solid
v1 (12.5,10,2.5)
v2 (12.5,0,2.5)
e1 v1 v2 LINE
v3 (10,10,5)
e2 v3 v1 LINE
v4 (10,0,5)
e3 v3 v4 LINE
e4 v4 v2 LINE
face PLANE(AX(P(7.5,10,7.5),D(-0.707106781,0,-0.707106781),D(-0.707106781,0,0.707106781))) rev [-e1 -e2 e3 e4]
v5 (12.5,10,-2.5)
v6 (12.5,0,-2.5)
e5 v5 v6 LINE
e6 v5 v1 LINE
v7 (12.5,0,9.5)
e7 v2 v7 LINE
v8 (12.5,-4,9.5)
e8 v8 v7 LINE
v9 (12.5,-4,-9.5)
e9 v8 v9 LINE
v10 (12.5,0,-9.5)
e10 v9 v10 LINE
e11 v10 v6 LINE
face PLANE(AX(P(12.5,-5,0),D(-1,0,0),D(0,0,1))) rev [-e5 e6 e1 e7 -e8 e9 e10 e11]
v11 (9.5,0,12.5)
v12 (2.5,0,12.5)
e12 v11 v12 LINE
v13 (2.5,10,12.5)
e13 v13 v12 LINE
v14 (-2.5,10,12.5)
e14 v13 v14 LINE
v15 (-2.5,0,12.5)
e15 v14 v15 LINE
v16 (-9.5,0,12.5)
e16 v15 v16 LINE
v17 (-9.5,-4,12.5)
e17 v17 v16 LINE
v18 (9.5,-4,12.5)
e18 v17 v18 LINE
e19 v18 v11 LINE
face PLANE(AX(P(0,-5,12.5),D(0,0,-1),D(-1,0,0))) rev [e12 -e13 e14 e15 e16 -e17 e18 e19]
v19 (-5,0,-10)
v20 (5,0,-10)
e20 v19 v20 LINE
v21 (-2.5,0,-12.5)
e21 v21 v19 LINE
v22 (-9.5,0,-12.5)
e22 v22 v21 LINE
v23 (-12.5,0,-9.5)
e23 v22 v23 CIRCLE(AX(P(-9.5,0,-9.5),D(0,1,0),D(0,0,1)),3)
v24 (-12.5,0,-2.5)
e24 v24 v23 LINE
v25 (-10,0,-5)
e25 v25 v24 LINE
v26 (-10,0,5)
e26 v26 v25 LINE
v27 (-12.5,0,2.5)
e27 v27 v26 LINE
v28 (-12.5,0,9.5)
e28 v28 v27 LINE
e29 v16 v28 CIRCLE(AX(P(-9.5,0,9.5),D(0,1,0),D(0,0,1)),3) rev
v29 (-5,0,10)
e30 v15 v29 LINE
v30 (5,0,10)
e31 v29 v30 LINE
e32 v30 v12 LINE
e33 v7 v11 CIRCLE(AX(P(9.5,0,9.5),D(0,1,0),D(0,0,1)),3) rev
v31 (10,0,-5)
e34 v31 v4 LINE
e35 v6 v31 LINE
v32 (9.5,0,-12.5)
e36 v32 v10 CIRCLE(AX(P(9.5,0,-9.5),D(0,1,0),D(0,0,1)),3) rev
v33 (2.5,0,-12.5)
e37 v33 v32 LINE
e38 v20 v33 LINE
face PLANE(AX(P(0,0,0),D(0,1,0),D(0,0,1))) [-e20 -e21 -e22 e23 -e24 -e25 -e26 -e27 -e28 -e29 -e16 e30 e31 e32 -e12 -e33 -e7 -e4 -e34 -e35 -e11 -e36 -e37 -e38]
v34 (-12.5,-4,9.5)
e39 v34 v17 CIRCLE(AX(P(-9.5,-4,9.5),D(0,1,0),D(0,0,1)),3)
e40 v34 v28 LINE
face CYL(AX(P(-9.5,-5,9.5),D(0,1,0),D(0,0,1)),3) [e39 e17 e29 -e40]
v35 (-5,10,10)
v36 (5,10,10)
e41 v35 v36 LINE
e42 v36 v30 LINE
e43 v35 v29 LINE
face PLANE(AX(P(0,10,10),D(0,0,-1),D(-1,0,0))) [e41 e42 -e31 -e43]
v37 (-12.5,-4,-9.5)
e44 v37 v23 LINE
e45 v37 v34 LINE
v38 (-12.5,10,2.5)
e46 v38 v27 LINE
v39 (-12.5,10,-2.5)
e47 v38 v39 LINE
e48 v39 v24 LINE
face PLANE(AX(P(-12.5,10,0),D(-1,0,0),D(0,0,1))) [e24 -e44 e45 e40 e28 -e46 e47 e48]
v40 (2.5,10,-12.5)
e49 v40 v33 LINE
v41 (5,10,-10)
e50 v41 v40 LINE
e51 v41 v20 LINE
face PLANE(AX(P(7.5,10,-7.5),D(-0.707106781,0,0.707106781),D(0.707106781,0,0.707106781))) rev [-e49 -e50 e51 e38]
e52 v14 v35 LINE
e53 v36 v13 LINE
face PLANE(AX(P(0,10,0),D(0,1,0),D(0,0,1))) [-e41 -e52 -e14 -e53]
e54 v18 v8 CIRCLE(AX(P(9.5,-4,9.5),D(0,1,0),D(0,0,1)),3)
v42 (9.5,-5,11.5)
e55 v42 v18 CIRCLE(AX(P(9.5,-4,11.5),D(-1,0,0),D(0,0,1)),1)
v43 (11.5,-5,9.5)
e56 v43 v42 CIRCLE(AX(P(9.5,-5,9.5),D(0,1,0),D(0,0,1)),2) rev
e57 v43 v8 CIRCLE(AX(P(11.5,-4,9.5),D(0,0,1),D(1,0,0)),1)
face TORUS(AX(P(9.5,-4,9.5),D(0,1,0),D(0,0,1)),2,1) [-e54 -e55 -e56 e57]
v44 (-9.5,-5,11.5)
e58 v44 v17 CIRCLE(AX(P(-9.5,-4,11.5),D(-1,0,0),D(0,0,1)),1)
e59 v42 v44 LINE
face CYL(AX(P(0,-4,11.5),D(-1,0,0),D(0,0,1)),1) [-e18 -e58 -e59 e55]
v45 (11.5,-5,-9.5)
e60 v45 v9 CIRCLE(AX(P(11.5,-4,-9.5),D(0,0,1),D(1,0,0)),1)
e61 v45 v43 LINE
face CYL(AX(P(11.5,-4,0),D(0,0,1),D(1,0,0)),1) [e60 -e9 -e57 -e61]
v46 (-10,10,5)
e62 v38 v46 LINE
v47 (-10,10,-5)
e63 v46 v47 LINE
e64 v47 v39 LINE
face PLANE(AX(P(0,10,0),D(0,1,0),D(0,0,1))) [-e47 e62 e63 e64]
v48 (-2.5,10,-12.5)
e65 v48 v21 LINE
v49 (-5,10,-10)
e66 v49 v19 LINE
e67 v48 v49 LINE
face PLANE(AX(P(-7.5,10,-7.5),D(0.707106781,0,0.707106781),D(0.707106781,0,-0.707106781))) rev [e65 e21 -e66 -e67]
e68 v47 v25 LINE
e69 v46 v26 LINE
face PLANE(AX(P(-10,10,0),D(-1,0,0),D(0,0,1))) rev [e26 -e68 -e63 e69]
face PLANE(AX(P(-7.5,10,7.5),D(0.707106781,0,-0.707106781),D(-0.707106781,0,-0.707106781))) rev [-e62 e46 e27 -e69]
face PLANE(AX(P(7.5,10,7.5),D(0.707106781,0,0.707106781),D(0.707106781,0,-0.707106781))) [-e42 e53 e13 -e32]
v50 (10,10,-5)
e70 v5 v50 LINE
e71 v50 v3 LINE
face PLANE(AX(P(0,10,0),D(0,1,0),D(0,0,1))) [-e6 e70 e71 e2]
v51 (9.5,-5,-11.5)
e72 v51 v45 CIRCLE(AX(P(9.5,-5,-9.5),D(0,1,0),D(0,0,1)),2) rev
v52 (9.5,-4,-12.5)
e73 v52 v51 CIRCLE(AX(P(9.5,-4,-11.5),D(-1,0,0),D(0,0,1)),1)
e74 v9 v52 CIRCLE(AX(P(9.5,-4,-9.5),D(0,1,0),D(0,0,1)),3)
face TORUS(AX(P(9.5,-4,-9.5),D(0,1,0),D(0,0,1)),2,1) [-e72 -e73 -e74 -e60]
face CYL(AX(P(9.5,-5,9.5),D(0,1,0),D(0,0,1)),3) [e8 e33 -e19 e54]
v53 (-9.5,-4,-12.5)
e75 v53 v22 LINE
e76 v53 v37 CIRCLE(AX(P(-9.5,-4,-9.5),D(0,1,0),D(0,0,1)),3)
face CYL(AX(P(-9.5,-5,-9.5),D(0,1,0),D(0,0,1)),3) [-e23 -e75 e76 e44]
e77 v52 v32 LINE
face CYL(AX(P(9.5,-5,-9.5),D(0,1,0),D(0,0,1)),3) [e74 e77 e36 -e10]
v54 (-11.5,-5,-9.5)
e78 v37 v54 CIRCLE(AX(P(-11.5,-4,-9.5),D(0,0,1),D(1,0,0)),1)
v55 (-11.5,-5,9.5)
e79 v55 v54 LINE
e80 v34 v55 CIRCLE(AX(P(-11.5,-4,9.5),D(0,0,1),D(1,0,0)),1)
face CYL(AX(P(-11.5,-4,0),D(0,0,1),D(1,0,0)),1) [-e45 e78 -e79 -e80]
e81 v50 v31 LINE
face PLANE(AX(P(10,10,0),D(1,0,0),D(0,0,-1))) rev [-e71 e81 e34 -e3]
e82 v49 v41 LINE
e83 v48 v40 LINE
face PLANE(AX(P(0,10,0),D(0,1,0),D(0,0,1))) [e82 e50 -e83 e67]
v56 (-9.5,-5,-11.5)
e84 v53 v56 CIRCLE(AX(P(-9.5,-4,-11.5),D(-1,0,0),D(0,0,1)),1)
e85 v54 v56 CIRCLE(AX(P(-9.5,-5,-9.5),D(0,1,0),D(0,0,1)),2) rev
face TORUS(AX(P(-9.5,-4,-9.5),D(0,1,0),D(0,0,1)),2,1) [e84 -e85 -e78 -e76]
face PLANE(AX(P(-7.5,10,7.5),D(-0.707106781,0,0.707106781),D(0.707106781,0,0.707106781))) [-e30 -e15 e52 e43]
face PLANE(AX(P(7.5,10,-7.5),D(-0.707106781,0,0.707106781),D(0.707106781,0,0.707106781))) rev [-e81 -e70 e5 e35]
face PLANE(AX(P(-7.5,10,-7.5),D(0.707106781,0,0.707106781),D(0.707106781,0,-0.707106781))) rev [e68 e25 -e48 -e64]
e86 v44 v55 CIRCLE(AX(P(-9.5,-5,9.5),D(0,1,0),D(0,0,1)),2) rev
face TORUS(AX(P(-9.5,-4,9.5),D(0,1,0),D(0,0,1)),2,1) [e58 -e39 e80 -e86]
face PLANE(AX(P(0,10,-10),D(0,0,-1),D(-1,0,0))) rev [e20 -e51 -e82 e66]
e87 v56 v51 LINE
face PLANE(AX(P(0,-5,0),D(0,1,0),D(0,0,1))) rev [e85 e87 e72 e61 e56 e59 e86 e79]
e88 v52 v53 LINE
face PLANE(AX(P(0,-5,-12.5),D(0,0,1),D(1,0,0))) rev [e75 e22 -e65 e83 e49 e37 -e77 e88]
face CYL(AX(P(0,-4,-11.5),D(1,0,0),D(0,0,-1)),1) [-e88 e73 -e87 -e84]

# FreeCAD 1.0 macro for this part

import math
import FreeCAD as App
import Part
import Sketcher
Q = App.Units.Quantity


def edges_at(feature, points):
    """Names of the edges that pass closest to the given points."""
    edges = feature.Shape.Edges
    near = lambda p: min(range(len(edges)), key=lambda i: edges[i].distToShape(Part.Vertex(*p))[0])
    return sorted({f"Edge{near(p) + 1}" for p in points})


def add_polygon(sketch, points):
    """Adds a closed chain of lines whose ends are joined by coincident constraints."""
    first, n = sketch.GeometryCount, len(points)
    for a, b in zip(points, points[1:] + points[:1]):
        sketch.addGeometry(Part.LineSegment(App.Vector(*a, 0), App.Vector(*b, 0)), False)
    for i in range(n):
        sketch.addConstraint(Sketcher.Constraint("Coincident", first + i, 2, first + (i + 1) % n, 1))

doc = App.newDocument("Part")
body = doc.addObject("PartDesign::Body", "Body")

sketch1 = body.newObject("Sketcher::SketchObject", "Sketch")
sketch1.AttachmentSupport = (doc.getObject("XZ_Plane"), [""])
sketch1.MapMode = "FlatFace"
add_polygon(sketch1, [(-10, 5), (-10, -5), (-12.5, -2.5), (-12.5, 2.5)])
sketch1.addConstraint([
    Sketcher.Constraint("Vertical", 0),
    Sketcher.Constraint("Vertical", 2),
    Sketcher.Constraint("Perpendicular", 1, 3),
    Sketcher.Constraint("Equal", 1, 3),
    Sketcher.Constraint("DistanceY", 0, 2, 0, 1, Q("10 mm")),
    Sketcher.Constraint("DistanceY", 2, 1, 2, 2, Q("5 mm")),
    Sketcher.Constraint("DistanceX", 0, 2, -1, 1, Q("10 mm")),
    Sketcher.Constraint("DistanceY", 0, 2, -1, 1, Q("5 mm")),
])
pad1 = body.newObject("PartDesign::Pad", "Pad")
pad1.Profile = sketch1
pad1.Length = 10
pad1.Reversed = True
body2 = doc.addObject("PartDesign::Body", "Body001")

sketch2 = body2.newObject("Sketcher::SketchObject", "Sketch001")
sketch2.AttachmentSupport = (doc.getObject("XZ_Plane001"), [""])
sketch2.MapMode = "FlatFace"
add_polygon(sketch2, [(-5, -10), (5, -10), (2.5, -12.5), (-2.5, -12.5)])
sketch2.addConstraint([
    Sketcher.Constraint("Horizontal", 0),
    Sketcher.Constraint("Horizontal", 2),
    Sketcher.Constraint("Perpendicular", 1, 3),
    Sketcher.Constraint("Equal", 1, 3),
    Sketcher.Constraint("DistanceX", 0, 1, 0, 2, Q("10 mm")),
    Sketcher.Constraint("DistanceX", 2, 2, 2, 1, Q("5 mm")),
    Sketcher.Constraint("DistanceX", -1, 1, 0, 2, Q("5 mm")),
    Sketcher.Constraint("DistanceY", 0, 2, -1, 1, Q("10 mm")),
])
pad2 = body2.newObject("PartDesign::Pad", "Pad001")
pad2.Profile = sketch2
pad2.Length = 10
pad2.Reversed = True
body3 = doc.addObject("PartDesign::Body", "Body002")

sketch3 = body3.newObject("Sketcher::SketchObject", "Sketch002")
sketch3.AttachmentSupport = (doc.getObject("XZ_Plane002"), [""])
sketch3.MapMode = "FlatFace"
add_polygon(sketch3, [(10, -5), (10, 5), (12.5, 2.5), (12.5, -2.5)])
sketch3.addConstraint([
    Sketcher.Constraint("Vertical", 0),
    Sketcher.Constraint("Vertical", 2),
    Sketcher.Constraint("Perpendicular", 1, 3),
    Sketcher.Constraint("Equal", 1, 3),
    Sketcher.Constraint("DistanceY", 0, 1, 0, 2, Q("10 mm")),
    Sketcher.Constraint("DistanceY", 2, 2, 2, 1, Q("5 mm")),
    Sketcher.Constraint("DistanceX", -1, 1, 0, 2, Q("10 mm")),
    Sketcher.Constraint("DistanceY", -1, 1, 0, 2, Q("5 mm")),
])
pad3 = body3.newObject("PartDesign::Pad", "Pad002")
pad3.Profile = sketch3
pad3.Length = 10
pad3.Reversed = True
body4 = doc.addObject("PartDesign::Body", "Body003")

sketch4 = body4.newObject("Sketcher::SketchObject", "Sketch003")
sketch4.AttachmentSupport = (doc.getObject("XZ_Plane003"), [""])
sketch4.MapMode = "FlatFace"
add_polygon(sketch4, [(2.5, 12.5), (5, 10), (-5, 10), (-2.5, 12.5)])
sketch4.addConstraint([
    Sketcher.Constraint("Horizontal", 1),
    Sketcher.Constraint("Horizontal", 3),
    Sketcher.Constraint("Perpendicular", 0, 2),
    Sketcher.Constraint("Equal", 0, 2),
    Sketcher.Constraint("DistanceX", 1, 2, 1, 1, Q("10 mm")),
    Sketcher.Constraint("DistanceX", 3, 1, 3, 2, Q("5 mm")),
    Sketcher.Constraint("DistanceX", -1, 1, 0, 2, Q("5 mm")),
    Sketcher.Constraint("DistanceY", -1, 1, 0, 2, Q("10 mm")),
])
pad4 = body4.newObject("PartDesign::Pad", "Pad003")
pad4.Profile = sketch4
pad4.Length = 10
pad4.Reversed = True
body.AllowCompound = True
doc.recompute()

boolean = body.newObject("PartDesign::Boolean", "Boolean")
boolean.Type = "Fuse"
boolean.addObjects([body2])
doc.recompute()

boolean2 = body.newObject("PartDesign::Boolean", "Boolean001")
boolean2.Type = "Fuse"
boolean2.addObjects([body3])
doc.recompute()

boolean3 = body.newObject("PartDesign::Boolean", "Boolean002")
boolean3.Type = "Fuse"
boolean3.addObjects([body4])

sketch5 = body.newObject("Sketcher::SketchObject", "Sketch004")
sketch5.AttachmentSupport = (doc.getObject("XZ_Plane"), [""])
sketch5.MapMode = "FlatFace"
sketch5.addGeometry([
    Part.LineSegment(App.Vector(9.5, -12.5, 0), App.Vector(-9.5, -12.5, 0)),
    Part.ArcOfCircle(Part.Circle(App.Vector(-9.5, -9.5, 0), App.Vector(0, 0, 1), 3), math.radians(180), math.radians(270)),
    Part.LineSegment(App.Vector(-12.5, -9.5, 0), App.Vector(-12.5, 9.5, 0)),
    Part.ArcOfCircle(Part.Circle(App.Vector(-9.5, 9.5, 0), App.Vector(0, 0, 1), 3), math.radians(90), math.radians(180)),
    Part.LineSegment(App.Vector(-9.5, 12.5, 0), App.Vector(9.5, 12.5, 0)),
    Part.ArcOfCircle(Part.Circle(App.Vector(9.5, 9.5, 0), App.Vector(0, 0, 1), 3), math.radians(0), math.radians(90)),
    Part.LineSegment(App.Vector(12.5, 9.5, 0), App.Vector(12.5, -9.5, 0)),
    Part.ArcOfCircle(Part.Circle(App.Vector(9.5, -9.5, 0), App.Vector(0, 0, 1), 3), math.radians(-90), math.radians(0)),
], False)
sketch5.addConstraint([
    Sketcher.Constraint("Tangent", 0, 2, 1, 2),
    Sketcher.Constraint("Tangent", 1, 1, 2, 1),
    Sketcher.Constraint("Tangent", 2, 2, 3, 2),
    Sketcher.Constraint("Tangent", 3, 1, 4, 1),
    Sketcher.Constraint("Tangent", 4, 2, 5, 2),
    Sketcher.Constraint("Tangent", 5, 1, 6, 1),
    Sketcher.Constraint("Tangent", 6, 2, 7, 2),
    Sketcher.Constraint("Tangent", 7, 1, 0, 1),
    Sketcher.Constraint("Horizontal", 0),
    Sketcher.Constraint("Vertical", 2),
    Sketcher.Constraint("Horizontal", 4),
    Sketcher.Constraint("Vertical", 6),
    Sketcher.Constraint("Equal", 1, 3),
    Sketcher.Constraint("Equal", 3, 5),
    Sketcher.Constraint("Equal", 5, 7),
    Sketcher.Constraint("Symmetric", 1, 3, 5, 3, -1, 1),
    Sketcher.Constraint("Equal", 4, 2),
    Sketcher.Constraint("Radius", 1, Q("3 mm")),
    Sketcher.Constraint("DistanceX", 0, 2, 0, 1, Q("19 mm")),
])
pad5 = body.newObject("PartDesign::Pad", "Pad004")
pad5.Profile = sketch5
pad5.Length = 5
doc.recompute()

fillet = body.newObject("PartDesign::Fillet", "Fillet")
fillet.Base = (pad5, edges_at(pad5, [
    (-11.621, -5, -11.621),
    (-12.5, -5, 0),
    (0, -5, -12.5),
    (11.621, -5, -11.621),
    (12.5, -5, 0),
    (11.621, -5, 11.621),
    (0, -5, 12.5),
    (-11.621, -5, 11.621),
]))
fillet.Radius = 1

doc.recompute()
